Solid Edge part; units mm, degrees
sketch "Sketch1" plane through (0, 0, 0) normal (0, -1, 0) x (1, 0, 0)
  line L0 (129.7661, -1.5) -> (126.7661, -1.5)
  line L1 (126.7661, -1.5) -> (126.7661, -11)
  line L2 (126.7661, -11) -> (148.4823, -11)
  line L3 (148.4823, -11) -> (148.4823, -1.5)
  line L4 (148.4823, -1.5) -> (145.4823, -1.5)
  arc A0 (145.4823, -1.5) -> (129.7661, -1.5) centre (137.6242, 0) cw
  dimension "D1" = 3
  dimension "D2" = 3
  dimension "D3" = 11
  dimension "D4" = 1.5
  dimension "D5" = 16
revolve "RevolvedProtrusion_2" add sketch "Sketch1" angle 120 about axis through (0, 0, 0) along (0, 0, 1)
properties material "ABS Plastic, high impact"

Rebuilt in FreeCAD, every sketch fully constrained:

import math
import FreeCAD as App
import Part
import Sketcher
from FreeCAD import Vector
Q = App.Units.Quantity

doc = App.newDocument("Part")
body = doc.addObject("PartDesign::Body", "Body")

# Sketch on XZ plane
sketch1 = doc.addObject("Sketcher::SketchObject", "Sketch")
body.addObject(sketch1)
sketch1.AttachmentSupport = (doc.XZ_Plane, [""])
sketch1.MapMode = "FlatFace"
sketch1.addGeometry([
    Part.ArcOfCircle(Part.Circle(Vector(137.6242, 0, 0), Vector(0, 0, 1), 7.999983), math.radians(-169.193055), math.radians(-10.806945)),  # 0
    Part.LineSegment(Vector(129.7661, -1.5, 0), Vector(126.7661, -1.5, 0)),  # 1
    Part.LineSegment(Vector(126.7661, -1.5, 0), Vector(126.7661, -11, 0)),  # 2
    Part.LineSegment(Vector(126.7661, -11, 0), Vector(148.4823, -11, 0)),  # 3
    Part.LineSegment(Vector(148.4823, -11, 0), Vector(148.4823, -1.5, 0)),  # 4
    Part.LineSegment(Vector(148.4823, -1.5, 0), Vector(145.4823, -1.5, 0)),  # 5
], False)
sketch1.addConstraint([
    Sketcher.Constraint("Coincident", 0, 1, 1, 1),
    Sketcher.Constraint("Coincident", 1, 2, 2, 1),
    Sketcher.Constraint("Coincident", 2, 2, 3, 1),
    Sketcher.Constraint("Coincident", 3, 2, 4, 1),
    Sketcher.Constraint("Coincident", 4, 2, 5, 1),
    Sketcher.Constraint("Coincident", 5, 2, 0, 2),
    Sketcher.Constraint("Horizontal", 1),
    Sketcher.Constraint("Vertical", 2),
    Sketcher.Constraint("Horizontal", 3),
    Sketcher.Constraint("Vertical", 4),
    Sketcher.Constraint("Horizontal", 5),
    Sketcher.Constraint("PointOnObject", 0, 3, -1),
    Sketcher.Constraint("Horizontal", 1, 2, 4, 2),
    Sketcher.Constraint("Equal", 1, 5),
    Sketcher.Constraint("Radius", 0, Q("8 mm")),
    Sketcher.Constraint("DistanceX", 1, 2, 1, 1, Q("3 mm")),
    Sketcher.Constraint("DistanceY", 2, 2, 2, 1, Q("9.5 mm")),
    Sketcher.Constraint("DistanceX", -1, 1, 0, 1, Q("129.766 mm")),
    Sketcher.Constraint("DistanceY", 2, 2, -1, 1, Q("11 mm")),
])
revolution = doc.addObject("PartDesign::Revolution", "Revolution")
body.addObject(revolution)
revolution.Profile = sketch1
revolution.ReferenceAxis = (sketch1, ["V_Axis"])
revolution.Angle = 120

doc.recompute()
